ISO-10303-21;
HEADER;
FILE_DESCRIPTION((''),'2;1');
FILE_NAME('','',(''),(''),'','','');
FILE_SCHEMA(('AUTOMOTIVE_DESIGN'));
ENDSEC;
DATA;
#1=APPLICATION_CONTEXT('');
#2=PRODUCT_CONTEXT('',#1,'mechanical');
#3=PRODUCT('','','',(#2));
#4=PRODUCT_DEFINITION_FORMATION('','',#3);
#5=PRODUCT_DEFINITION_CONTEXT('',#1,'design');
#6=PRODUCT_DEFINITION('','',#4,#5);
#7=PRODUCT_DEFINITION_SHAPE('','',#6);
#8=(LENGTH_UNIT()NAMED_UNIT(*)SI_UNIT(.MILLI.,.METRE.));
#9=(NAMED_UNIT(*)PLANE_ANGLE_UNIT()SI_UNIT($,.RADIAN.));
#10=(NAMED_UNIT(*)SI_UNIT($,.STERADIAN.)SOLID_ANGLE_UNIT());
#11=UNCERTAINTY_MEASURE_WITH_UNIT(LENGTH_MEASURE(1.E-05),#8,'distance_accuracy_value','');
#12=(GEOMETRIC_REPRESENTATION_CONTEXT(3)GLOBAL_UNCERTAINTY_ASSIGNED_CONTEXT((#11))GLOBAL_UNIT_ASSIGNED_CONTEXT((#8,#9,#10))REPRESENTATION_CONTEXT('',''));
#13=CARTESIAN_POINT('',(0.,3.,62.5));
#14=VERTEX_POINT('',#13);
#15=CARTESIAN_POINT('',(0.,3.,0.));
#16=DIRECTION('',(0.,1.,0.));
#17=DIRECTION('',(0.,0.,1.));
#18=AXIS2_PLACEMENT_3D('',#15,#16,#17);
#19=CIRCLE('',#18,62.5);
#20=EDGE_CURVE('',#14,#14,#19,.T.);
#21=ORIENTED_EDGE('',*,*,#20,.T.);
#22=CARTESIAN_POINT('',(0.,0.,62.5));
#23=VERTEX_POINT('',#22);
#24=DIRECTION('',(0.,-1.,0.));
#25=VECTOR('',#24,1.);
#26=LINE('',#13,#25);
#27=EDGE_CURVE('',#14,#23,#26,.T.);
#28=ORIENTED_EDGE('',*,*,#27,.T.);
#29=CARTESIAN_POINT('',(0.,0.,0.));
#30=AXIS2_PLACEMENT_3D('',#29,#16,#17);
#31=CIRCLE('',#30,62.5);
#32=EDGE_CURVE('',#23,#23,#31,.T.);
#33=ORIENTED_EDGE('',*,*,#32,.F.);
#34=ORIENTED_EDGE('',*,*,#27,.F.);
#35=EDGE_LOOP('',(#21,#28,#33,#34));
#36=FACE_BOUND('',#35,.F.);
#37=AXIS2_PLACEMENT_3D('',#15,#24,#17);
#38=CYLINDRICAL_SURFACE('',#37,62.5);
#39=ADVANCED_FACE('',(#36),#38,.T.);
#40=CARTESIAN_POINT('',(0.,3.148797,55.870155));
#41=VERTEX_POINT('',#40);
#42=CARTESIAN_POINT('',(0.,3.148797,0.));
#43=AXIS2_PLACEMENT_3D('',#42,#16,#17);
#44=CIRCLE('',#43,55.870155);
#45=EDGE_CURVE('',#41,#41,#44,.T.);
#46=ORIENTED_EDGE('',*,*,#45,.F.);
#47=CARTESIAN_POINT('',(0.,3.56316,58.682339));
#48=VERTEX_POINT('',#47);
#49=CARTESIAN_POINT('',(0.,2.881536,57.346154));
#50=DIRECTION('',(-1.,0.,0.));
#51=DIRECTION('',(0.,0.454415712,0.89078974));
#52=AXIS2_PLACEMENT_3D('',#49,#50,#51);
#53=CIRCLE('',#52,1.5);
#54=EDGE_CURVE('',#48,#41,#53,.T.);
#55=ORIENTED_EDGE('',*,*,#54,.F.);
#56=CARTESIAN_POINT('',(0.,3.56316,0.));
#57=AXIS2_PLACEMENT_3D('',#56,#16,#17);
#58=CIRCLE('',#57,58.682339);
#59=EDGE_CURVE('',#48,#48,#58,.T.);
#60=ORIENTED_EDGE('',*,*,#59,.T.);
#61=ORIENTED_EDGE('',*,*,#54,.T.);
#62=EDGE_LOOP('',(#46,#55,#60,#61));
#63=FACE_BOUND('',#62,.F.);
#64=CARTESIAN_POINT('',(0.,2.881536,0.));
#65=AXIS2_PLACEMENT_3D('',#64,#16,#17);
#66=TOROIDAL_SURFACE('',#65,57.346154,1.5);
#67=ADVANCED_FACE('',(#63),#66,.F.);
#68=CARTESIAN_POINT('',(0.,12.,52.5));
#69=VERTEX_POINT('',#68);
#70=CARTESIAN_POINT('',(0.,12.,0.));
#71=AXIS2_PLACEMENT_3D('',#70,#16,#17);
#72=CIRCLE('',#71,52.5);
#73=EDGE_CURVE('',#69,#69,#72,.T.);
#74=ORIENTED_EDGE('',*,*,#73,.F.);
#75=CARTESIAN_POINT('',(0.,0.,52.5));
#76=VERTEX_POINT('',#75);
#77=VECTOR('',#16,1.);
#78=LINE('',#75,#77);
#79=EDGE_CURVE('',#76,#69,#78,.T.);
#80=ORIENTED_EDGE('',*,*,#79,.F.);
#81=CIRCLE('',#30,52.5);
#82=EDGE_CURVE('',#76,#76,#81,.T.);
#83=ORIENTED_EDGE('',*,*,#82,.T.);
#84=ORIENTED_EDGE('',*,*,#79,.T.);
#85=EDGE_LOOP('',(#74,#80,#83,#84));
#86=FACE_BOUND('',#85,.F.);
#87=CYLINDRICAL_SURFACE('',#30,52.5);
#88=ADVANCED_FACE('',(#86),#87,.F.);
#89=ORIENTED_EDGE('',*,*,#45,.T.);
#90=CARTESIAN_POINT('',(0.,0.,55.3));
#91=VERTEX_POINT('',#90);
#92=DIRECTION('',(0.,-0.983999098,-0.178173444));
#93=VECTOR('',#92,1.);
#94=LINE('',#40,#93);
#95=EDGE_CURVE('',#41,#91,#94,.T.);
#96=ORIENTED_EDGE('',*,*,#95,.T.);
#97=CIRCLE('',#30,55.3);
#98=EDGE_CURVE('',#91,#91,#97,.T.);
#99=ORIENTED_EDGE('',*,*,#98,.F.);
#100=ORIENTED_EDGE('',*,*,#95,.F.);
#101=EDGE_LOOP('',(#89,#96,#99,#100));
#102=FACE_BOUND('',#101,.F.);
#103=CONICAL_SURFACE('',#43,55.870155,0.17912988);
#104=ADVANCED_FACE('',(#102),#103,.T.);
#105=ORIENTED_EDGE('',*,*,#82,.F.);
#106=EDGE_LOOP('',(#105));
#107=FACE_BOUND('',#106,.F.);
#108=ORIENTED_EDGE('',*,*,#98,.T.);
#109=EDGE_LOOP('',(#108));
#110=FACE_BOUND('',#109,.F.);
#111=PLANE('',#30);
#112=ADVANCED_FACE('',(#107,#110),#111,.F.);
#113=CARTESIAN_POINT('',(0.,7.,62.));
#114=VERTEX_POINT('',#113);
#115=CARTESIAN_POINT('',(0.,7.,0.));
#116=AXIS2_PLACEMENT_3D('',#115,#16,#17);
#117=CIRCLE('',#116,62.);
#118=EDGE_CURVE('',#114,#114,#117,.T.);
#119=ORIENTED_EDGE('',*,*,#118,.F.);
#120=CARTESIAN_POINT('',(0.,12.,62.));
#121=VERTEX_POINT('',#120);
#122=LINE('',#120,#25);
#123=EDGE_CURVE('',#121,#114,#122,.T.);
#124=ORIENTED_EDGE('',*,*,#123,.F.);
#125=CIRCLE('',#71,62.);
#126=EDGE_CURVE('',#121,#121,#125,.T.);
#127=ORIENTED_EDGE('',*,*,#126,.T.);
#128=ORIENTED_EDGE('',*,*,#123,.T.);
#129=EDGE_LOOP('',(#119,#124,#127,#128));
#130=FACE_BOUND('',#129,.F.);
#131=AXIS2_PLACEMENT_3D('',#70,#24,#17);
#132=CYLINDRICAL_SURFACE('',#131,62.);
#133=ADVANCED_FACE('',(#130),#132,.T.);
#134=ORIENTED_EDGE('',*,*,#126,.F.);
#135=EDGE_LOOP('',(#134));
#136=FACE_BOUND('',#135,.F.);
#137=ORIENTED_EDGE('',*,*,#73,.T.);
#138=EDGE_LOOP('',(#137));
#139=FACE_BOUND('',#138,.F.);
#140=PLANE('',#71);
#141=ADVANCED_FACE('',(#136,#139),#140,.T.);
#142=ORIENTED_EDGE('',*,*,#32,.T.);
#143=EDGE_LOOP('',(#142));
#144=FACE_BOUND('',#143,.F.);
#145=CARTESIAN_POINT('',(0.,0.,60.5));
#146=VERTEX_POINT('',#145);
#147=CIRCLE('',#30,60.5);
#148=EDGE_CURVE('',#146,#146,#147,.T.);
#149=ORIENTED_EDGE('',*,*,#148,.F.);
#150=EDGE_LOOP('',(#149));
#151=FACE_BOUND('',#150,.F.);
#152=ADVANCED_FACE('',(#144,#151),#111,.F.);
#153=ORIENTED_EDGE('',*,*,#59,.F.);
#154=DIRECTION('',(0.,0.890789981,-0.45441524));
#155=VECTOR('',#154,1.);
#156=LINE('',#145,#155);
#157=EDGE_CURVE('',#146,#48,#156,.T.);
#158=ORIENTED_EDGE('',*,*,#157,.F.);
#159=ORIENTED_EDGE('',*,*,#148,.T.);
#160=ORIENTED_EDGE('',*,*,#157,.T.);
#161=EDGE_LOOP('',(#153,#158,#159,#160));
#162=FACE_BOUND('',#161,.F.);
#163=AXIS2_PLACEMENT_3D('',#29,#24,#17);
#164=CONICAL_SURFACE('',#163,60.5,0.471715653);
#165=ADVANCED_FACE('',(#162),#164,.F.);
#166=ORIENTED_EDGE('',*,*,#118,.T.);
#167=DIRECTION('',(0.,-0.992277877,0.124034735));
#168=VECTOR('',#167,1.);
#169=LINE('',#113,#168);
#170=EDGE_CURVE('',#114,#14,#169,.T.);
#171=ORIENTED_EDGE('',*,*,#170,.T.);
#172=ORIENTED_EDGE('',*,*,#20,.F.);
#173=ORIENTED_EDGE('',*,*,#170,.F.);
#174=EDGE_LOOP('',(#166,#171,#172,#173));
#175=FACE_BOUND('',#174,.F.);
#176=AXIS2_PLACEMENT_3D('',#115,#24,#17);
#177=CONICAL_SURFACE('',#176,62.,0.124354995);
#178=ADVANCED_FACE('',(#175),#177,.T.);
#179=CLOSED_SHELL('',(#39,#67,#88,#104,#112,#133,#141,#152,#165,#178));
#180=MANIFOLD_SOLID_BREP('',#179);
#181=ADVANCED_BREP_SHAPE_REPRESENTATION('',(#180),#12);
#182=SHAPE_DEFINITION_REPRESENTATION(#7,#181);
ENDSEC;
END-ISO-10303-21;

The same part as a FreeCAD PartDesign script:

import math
import FreeCAD as App
import Part
import Sketcher
from FreeCAD import Vector
Q = App.Units.Quantity

doc = App.newDocument("Part")
body = doc.addObject("PartDesign::Body", "Body")

sketch1 = doc.addObject("Sketcher::SketchObject", "Sketch")
body.addObject(sketch1)
sketch1.AttachmentSupport = (doc.YZ_Plane, [""])
sketch1.MapMode = "FlatFace"
sketch1.addGeometry([
    Part.LineSegment(Vector(0, 55.3, 0), Vector(0, 52.5, 0)),
    Part.LineSegment(Vector(0, 52.5, 0), Vector(12, 52.5, 0)),
    Part.LineSegment(Vector(12, 52.5, 0), Vector(12, 62, 0)),
    Part.LineSegment(Vector(12, 62, 0), Vector(7, 62, 0)),
    Part.LineSegment(Vector(7, 62, 0), Vector(3, 62.5, 0)),
    Part.LineSegment(Vector(3, 62.5, 0), Vector(0, 62.5, 0)),
    Part.LineSegment(Vector(0, 62.5, 0), Vector(0, 60.5, 0)),
    Part.LineSegment(Vector(0, 60.5, 0), Vector(3.56316, 58.682339, 0)),
    Part.ArcOfCircle(Part.Circle(Vector(2.881536, 57.346154, 0), Vector(0, 0, 1), 1.5), math.radians(-79.736593), math.radians(62.972654)),
    Part.LineSegment(Vector(3.148797, 55.870155, 0), Vector(0, 55.3, 0)),
], False)
sketch1.addConstraint([
    Sketcher.Constraint("Coincident", 0, 2, 1, 1),
    Sketcher.Constraint("Coincident", 1, 2, 2, 1),
    Sketcher.Constraint("Coincident", 2, 2, 3, 1),
    Sketcher.Constraint("Coincident", 3, 2, 4, 1),
    Sketcher.Constraint("Coincident", 4, 2, 5, 1),
    Sketcher.Constraint("Coincident", 5, 2, 6, 1),
    Sketcher.Constraint("Coincident", 6, 2, 7, 1),
    Sketcher.Constraint("Tangent", 7, 2, 8, 2),
    Sketcher.Constraint("Tangent", 8, 1, 9, 1),
    Sketcher.Constraint("Coincident", 9, 2, 0, 1),
    Sketcher.Constraint("Vertical", 0),
    Sketcher.Constraint("Horizontal", 1),
    Sketcher.Constraint("Vertical", 2),
    Sketcher.Constraint("Horizontal", 3),
    Sketcher.Constraint("Horizontal", 5),
    Sketcher.Constraint("Vertical", 6),
    Sketcher.Constraint("PointOnObject", 0, 2, -2),
    Sketcher.Constraint("PointOnObject", 5, 2, -2),
    Sketcher.Constraint("Radius", 8, Q("1.5 mm")),
    Sketcher.Constraint("DistanceX", 1, 1, 1, 2, Q("12 mm")),
    Sketcher.Constraint("DistanceX", 3, 2, 3, 1, Q("5 mm")),
    Sketcher.Constraint("DistanceX", 5, 2, 5, 1, Q("3 mm")),
    Sketcher.Constraint("DistanceY", 6, 2, 6, 1, Q("2 mm")),
    Sketcher.Constraint("Distance", 7, Q("4 mm")),
    Sketcher.Constraint("DistanceY", 0, 2, 0, 1, Q("2.8 mm")),
    Sketcher.Constraint("DistanceY", 2, 1, 2, 2, Q("9.5 mm")),
    Sketcher.Constraint("DistanceY", -1, 1, 2, 2, Q("62 mm")),
    Sketcher.Constraint("DistanceY", 0, 2, 4, 2, Q("10 mm")),
    Sketcher.Constraint("Distance", 9, Q("3.2 mm")),
])
revolution = doc.addObject("PartDesign::Revolution", "Revolution")
body.addObject(revolution)
revolution.Profile = sketch1
revolution.ReferenceAxis = (sketch1, ["H_Axis"])
revolution.Angle = 360

doc.recompute()
